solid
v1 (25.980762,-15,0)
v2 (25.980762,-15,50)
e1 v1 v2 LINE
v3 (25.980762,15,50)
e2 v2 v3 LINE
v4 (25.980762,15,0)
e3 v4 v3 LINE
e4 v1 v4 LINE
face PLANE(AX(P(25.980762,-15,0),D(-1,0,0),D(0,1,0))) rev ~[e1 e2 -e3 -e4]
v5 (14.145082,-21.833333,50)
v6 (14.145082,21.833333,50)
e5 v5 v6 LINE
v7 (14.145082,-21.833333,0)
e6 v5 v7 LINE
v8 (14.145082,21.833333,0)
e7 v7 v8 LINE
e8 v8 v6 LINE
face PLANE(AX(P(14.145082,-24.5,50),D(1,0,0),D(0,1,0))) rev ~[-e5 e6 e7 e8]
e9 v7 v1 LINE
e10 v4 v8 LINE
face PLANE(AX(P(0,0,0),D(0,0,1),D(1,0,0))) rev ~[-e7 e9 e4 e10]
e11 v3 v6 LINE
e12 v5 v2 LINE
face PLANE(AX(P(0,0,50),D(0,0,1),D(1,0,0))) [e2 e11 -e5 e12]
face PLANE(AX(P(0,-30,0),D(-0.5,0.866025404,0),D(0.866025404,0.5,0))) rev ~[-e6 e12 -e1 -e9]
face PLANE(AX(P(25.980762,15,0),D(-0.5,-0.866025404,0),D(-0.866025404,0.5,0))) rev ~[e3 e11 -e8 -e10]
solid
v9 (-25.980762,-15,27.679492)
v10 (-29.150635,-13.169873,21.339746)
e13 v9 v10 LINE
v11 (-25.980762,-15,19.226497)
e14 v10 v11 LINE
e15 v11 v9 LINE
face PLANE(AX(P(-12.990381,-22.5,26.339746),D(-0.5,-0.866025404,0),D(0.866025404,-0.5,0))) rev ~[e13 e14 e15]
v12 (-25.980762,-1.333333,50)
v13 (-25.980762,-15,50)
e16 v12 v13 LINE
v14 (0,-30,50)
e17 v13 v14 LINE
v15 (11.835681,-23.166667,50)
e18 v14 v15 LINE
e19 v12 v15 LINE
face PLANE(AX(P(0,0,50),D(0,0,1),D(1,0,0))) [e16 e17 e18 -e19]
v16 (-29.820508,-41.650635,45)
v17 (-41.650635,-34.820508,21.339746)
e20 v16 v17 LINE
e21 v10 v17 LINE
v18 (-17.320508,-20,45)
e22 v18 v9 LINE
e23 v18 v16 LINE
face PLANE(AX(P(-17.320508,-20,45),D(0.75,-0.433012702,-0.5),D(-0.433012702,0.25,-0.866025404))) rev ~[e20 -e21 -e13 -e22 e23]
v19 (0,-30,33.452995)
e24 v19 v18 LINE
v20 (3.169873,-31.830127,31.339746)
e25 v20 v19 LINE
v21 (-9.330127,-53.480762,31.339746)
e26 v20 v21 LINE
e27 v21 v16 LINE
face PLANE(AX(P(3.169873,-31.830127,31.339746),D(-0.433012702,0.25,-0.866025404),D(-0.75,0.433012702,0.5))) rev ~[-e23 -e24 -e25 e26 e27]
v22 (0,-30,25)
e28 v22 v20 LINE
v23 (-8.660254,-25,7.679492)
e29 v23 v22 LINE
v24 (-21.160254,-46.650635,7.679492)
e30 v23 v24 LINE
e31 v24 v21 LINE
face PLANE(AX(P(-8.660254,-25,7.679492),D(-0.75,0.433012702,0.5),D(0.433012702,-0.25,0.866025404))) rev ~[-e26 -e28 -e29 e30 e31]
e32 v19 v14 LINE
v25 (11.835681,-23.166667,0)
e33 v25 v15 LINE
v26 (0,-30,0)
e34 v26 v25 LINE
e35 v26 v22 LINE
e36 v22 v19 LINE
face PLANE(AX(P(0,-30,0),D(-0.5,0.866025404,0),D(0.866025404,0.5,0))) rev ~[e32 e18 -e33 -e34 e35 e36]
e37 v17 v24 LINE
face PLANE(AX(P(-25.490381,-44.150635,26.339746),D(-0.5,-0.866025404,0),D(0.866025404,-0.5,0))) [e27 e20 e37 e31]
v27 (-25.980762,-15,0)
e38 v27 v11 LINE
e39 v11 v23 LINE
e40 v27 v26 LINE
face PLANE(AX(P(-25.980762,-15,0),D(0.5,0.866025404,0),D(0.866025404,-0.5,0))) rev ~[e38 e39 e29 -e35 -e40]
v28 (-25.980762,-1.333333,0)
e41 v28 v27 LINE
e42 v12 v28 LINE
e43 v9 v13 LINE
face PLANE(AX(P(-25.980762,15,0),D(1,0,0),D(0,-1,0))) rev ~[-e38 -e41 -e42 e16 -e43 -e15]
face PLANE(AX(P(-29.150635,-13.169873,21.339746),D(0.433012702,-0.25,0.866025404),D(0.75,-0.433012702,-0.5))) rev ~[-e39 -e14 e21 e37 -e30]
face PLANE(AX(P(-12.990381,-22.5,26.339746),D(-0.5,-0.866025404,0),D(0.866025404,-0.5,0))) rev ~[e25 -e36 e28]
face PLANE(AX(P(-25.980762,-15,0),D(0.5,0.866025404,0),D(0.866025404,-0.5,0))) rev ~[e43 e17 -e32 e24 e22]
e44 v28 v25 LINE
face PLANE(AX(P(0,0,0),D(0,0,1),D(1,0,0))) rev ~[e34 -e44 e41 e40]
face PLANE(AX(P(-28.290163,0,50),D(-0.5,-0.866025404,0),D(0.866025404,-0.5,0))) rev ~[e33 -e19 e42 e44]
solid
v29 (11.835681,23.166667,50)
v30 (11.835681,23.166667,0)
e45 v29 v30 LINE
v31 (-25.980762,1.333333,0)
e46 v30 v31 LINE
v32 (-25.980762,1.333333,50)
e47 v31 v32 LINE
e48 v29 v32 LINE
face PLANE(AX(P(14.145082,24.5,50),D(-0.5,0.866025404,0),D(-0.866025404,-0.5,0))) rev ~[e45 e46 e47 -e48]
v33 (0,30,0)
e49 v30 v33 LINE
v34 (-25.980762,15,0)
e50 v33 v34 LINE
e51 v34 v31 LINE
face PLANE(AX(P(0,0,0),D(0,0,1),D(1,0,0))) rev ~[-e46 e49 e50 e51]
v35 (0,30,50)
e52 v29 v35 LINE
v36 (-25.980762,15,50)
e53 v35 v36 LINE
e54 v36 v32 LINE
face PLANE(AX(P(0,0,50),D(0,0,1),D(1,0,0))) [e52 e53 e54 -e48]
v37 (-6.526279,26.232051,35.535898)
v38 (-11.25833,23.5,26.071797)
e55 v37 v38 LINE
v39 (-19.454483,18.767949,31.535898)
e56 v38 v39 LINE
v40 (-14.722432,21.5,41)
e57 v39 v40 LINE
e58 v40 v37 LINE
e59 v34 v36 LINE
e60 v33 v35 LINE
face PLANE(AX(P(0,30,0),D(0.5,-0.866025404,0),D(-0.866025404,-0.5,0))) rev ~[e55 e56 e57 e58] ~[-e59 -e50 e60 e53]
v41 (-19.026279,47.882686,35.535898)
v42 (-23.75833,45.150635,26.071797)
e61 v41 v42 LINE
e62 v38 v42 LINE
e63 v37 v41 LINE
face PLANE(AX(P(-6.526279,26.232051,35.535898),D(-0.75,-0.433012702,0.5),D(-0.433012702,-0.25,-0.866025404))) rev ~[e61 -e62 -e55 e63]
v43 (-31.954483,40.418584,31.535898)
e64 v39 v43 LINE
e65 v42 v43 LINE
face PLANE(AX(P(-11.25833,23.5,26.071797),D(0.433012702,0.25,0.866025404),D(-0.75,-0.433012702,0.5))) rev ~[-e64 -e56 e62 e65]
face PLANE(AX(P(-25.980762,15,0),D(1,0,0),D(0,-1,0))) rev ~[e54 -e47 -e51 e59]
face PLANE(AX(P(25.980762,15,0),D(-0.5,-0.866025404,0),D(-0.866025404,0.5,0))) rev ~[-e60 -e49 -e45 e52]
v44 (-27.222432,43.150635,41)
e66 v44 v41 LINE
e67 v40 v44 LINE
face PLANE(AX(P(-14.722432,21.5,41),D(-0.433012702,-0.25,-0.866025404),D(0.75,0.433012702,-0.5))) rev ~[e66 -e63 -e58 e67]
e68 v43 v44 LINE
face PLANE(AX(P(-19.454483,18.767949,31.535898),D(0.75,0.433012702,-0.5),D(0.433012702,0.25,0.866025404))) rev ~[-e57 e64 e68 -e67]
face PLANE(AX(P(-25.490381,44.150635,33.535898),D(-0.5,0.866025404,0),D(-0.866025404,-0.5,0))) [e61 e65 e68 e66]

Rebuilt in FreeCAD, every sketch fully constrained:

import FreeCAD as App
import Part
import Sketcher
Q = App.Units.Quantity


def add_polygon(sketch, points):
    """Adds a closed chain of lines whose ends are joined by coincident constraints."""
    first, n = sketch.GeometryCount, len(points)
    for a, b in zip(points, points[1:] + points[:1]):
        sketch.addGeometry(Part.LineSegment(App.Vector(*a, 0), App.Vector(*b, 0)), False)
    for i in range(n):
        sketch.addConstraint(Sketcher.Constraint("Coincident", first + i, 2, first + (i + 1) % n, 1))

doc = App.newDocument("Part")
body = doc.addObject("PartDesign::Body", "Body")
body.AllowCompound = True

# Sketch on XY plane
sketch1 = body.newObject("Sketcher::SketchObject", "Sketch")
sketch1.AttachmentSupport = (doc.getObject("XY_Plane"), [""])
sketch1.MapMode = "FlatFace"
add_polygon(sketch1, [(-26, 15), (-26, -15), (0, -30), (26, -15), (26, 15), (0, 30)])  # lines 0-5
sketch1.addConstraint([
    Sketcher.Constraint("Vertical", 0),
    Sketcher.Constraint("Vertical", 3),
    Sketcher.Constraint("Symmetric", 0, 2, 3, 2, -1, 1),
    Sketcher.Constraint("Symmetric", 1, 2, 4, 2, -1, 1),
    Sketcher.Constraint("PointOnObject", 1, 2, -2),
    Sketcher.Constraint("Parallel", 2, 5),
    Sketcher.Constraint("Horizontal", 0, 2, 2, 2),
    Sketcher.Constraint("DistanceY", 0, 2, 0, 1, Q("30 mm")),
    Sketcher.Constraint("Angle", 1, Q("-30 deg")),
    Sketcher.Constraint("Distance", 1, Q("30 mm")),
])
pad1 = body.newObject("PartDesign::Pad", "Pad")
pad1.Profile = sketch1
pad1.Length = 50

# Sketch on XY plane
sketch2 = body.newObject("Sketcher::SketchObject", "Sketch001")
sketch2.AttachmentSupport = (doc.getObject("XY_Plane"), [""])
sketch2.MapMode = "FlatFace"
sketch2.AttachmentOffset = App.Placement(App.Vector(0, 0, 50), App.Rotation())
add_polygon(sketch2, [(14, 24), (-28, 0), (14, -24)])  # lines 0-2
sketch2.addConstraint([
    Sketcher.Constraint("Vertical", 2),
    Sketcher.Constraint("PointOnObject", 0, 2, -1),
    Sketcher.Constraint("Equal", 0, 1),
    Sketcher.Constraint("DistanceY", 2, 1, 2, 2, Q("49 mm")),
    Sketcher.Constraint("Angle", 0, Q("-150 deg")),
    Sketcher.Constraint("DistanceX", -1, 1, 1, 2, Q("14.145082 mm")),
])
pocket1 = body.newObject("PartDesign::Pocket", "Pocket")
pocket1.Profile = sketch2
pocket1.Length = 50

# Sketch on an angled plane
sketch3 = body.newObject("Sketcher::SketchObject", "Sketch002")
sketch3.Placement = App.Placement(App.Vector(-12.990381, -22.5, 0), App.Rotation(App.Vector(0.866025404, -0.5, 0), App.Vector(0, 0, 1), App.Vector(-0.5, -0.866025404, 0), "ZXY"))
add_polygon(sketch3, [(-5, 45), (-19, 21), (5, 8), (19, 31)])  # lines 0-3
sketch3.addConstraint([
    Sketcher.Constraint("Perpendicular", 0, 1),
    Sketcher.Constraint("Perpendicular", 1, 2),
    Sketcher.Constraint("Perpendicular", 2, 3),
    Sketcher.Constraint("Equal", 0, 1),
    Sketcher.Constraint("Angle", 0, Q("-120 deg")),
    Sketcher.Constraint("DistanceX", -1, 1, 1, 2, Q("5 mm")),
    Sketcher.Constraint("DistanceX", 3, 2, -1, 1, Q("5 mm")),
    Sketcher.Constraint("DistanceY", -1, 1, 3, 2, Q("45 mm")),
])
pad2 = body.newObject("PartDesign::Pad", "Pad001")
pad2.Profile = sketch3
pad2.Length = 25

# Sketch on an angled plane
sketch4 = body.newObject("Sketcher::SketchObject", "Sketch003")
sketch4.Placement = App.Placement(App.Vector(-12.990381, 22.5, 0), App.Rotation(App.Vector(-0.866025404, -0.5, 0), App.Vector(0, 0, 1), App.Vector(-0.5, 0.866025404, 0), "ZXY"))
add_polygon(sketch4, [(-2, 26), (7, 32), (2, 41), (-7, 36)])  # lines 0-3
sketch4.addConstraint([
    Sketcher.Constraint("Perpendicular", 0, 1),
    Sketcher.Constraint("Perpendicular", 1, 2),
    Sketcher.Constraint("Perpendicular", 2, 3),
    Sketcher.Constraint("Equal", 0, 1),
    Sketcher.Constraint("Angle", 0, Q("30 deg")),
    Sketcher.Constraint("DistanceX", -1, 1, 1, 2, Q("2 mm")),
    Sketcher.Constraint("DistanceY", -1, 1, 1, 2, Q("41 mm")),
    Sketcher.Constraint("DistanceX", 3, 2, -1, 1, Q("2 mm")),
])
pad3 = body.newObject("PartDesign::Pad", "Pad002")
pad3.Profile = sketch4
pad3.Length = 25

doc.recompute()
